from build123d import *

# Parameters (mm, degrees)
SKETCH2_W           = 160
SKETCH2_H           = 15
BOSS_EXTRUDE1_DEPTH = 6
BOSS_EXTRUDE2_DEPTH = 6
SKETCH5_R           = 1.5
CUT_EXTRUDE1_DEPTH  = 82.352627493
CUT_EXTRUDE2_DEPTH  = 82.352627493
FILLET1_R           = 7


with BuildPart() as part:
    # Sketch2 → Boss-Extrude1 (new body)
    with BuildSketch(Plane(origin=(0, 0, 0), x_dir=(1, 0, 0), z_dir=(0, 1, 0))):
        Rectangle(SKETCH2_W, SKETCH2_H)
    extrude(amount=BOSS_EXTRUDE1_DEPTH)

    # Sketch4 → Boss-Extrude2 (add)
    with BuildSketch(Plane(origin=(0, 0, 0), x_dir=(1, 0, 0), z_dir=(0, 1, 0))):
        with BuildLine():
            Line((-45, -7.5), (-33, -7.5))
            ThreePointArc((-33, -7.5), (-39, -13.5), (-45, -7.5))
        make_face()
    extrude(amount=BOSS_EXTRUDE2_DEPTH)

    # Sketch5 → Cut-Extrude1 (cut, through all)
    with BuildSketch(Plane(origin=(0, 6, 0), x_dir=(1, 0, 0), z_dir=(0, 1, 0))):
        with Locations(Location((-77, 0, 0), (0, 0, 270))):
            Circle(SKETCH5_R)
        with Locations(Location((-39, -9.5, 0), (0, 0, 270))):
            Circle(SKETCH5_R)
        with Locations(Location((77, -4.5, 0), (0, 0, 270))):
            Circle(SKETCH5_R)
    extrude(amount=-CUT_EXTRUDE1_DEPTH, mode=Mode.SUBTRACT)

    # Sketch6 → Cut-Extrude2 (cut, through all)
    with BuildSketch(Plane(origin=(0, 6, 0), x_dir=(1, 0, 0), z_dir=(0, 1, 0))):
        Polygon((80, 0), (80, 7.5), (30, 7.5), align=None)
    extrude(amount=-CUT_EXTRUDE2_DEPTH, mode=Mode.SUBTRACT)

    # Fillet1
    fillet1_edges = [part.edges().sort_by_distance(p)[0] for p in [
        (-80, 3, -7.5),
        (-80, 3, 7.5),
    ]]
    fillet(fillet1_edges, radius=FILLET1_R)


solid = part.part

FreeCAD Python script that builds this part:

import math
import FreeCAD as App
import Part
import Sketcher

V = App.Vector


def edges_at(feature, points):
    """Names of the edges that pass closest to the given points."""
    edges = feature.Shape.Edges
    near = lambda p: min(range(len(edges)), key=lambda i: edges[i].distToShape(Part.Vertex(*p))[0])
    return sorted({f"Edge{near(p) + 1}" for p in points})


def add_polygon(sketch, points):
    """Adds a closed chain of lines whose ends are joined by coincident constraints."""
    first, n = sketch.GeometryCount, len(points)
    for a, b in zip(points, points[1:] + points[:1]):
        sketch.addGeometry(Part.LineSegment(App.Vector(*a, 0), App.Vector(*b, 0)), False)
    for i in range(n):
        sketch.addConstraint(Sketcher.Constraint("Coincident", first + i, 2, first + (i + 1) % n, 1))

doc = App.newDocument("Part")
body = doc.addObject("PartDesign::Body", "Body")

sketch1 = doc.addObject("Sketcher::SketchObject", "Sketch")
body.addObject(sketch1)
sketch1.AttachmentSupport = (doc.XZ_Plane, [""])
sketch1.MapMode = "FlatFace"
add_polygon(sketch1, [(-80, -7.5), (-80, 7.5), (80, 7.5), (80, -7.5)])
sketch1.addConstraint(Sketcher.Constraint("Vertical", 0))
sketch1.addConstraint(Sketcher.Constraint("Horizontal", 1))
sketch1.addConstraint(Sketcher.Constraint("Vertical", 2))
sketch1.addConstraint(Sketcher.Constraint("Horizontal", 3))
sketch1.addConstraint(Sketcher.Constraint("Symmetric", 0, 2, 2, 2, -1, 1))
sketch1.addConstraint(Sketcher.Constraint("DistanceX", 1, 1, 1, 2, 160.0))
sketch1.addConstraint(Sketcher.Constraint("DistanceY", 0, 1, 0, 2, 15.0))
pad1 = doc.addObject("PartDesign::Pad", "Pad")
body.addObject(pad1)
pad1.Profile = sketch1
pad1.Length = 6
pad1.Reversed = True

sketch2 = doc.addObject("Sketcher::SketchObject", "Sketch001")
body.addObject(sketch2)
sketch2.AttachmentSupport = (doc.XZ_Plane, [""])
sketch2.MapMode = "FlatFace"
sketch2.addGeometry(Part.LineSegment(V(-33, 7.5, 0), V(-45, 7.5, 0)), False)
sketch2.addGeometry(Part.ArcOfCircle(Part.Circle(V(-39, 7.5, 0), V(0, 0, 1), 6), math.radians(0), math.radians(180)), False)
sketch2.addConstraint(Sketcher.Constraint("Coincident", 0, 1, 1, 1))
sketch2.addConstraint(Sketcher.Constraint("Coincident", 1, 2, 0, 2))
sketch2.addConstraint(Sketcher.Constraint("Horizontal", 0))
sketch2.addConstraint(Sketcher.Constraint("Horizontal", 1, 3, 0, 1))
sketch2.addConstraint(Sketcher.Constraint("Radius", 1, 6.0))
sketch2.addConstraint(Sketcher.Constraint("DistanceX", 1, 3, -1, 1, 39.0))
sketch2.addConstraint(Sketcher.Constraint("DistanceY", -1, 1, 1, 3, 7.5))
pad2 = doc.addObject("PartDesign::Pad", "Pad001")
body.addObject(pad2)
pad2.Profile = sketch2
pad2.Length = 6
pad2.Reversed = True

sketch3 = doc.addObject("Sketcher::SketchObject", "Sketch002")
body.addObject(sketch3)
sketch3.AttachmentSupport = (doc.XZ_Plane, [""])
sketch3.MapMode = "FlatFace"
sketch3.AttachmentOffset = App.Placement(V(0, 0, -6), App.Rotation())
sketch3.addGeometry(Part.Circle(V(-77, 0, 0), V(0, 0, 1), 1.5), False)
sketch3.addGeometry(Part.Circle(V(-39, 9.5, 0), V(0, 0, 1), 1.5), False)
sketch3.addGeometry(Part.Circle(V(77, 4.5, 0), V(0, 0, 1), 1.5), False)
sketch3.addConstraint(Sketcher.Constraint("Equal", 0, 1))
sketch3.addConstraint(Sketcher.Constraint("Equal", 1, 2))
sketch3.addConstraint(Sketcher.Constraint("PointOnObject", 0, 3, -1))
sketch3.addConstraint(Sketcher.Constraint("Diameter", 0, 3.0))
sketch3.addConstraint(Sketcher.Constraint("DistanceX", 0, 3, -1, 1, 77.0))
sketch3.addConstraint(Sketcher.Constraint("DistanceX", 1, 3, -1, 1, 39.0))
sketch3.addConstraint(Sketcher.Constraint("DistanceX", -1, 1, 2, 3, 77.0))
sketch3.addConstraint(Sketcher.Constraint("DistanceY", 2, 3, 1, 3, 5.0))
sketch3.addConstraint(Sketcher.Constraint("DistanceY", -1, 1, 1, 3, 9.5))
pocket1 = doc.addObject("PartDesign::Pocket", "Pocket")
body.addObject(pocket1)
pocket1.Profile = sketch3
pocket1.Type = "ThroughAll"
pocket1.Reversed = True

sketch4 = doc.addObject("Sketcher::SketchObject", "Sketch003")
body.addObject(sketch4)
sketch4.AttachmentSupport = (doc.XZ_Plane, [""])
sketch4.MapMode = "FlatFace"
sketch4.AttachmentOffset = App.Placement(V(0, 0, -6), App.Rotation())
add_polygon(sketch4, [(80, 0), (80, -7.5), (30, -7.5)])
sketch4.addConstraint(Sketcher.Constraint("Vertical", 0))
sketch4.addConstraint(Sketcher.Constraint("Horizontal", 1))
sketch4.addConstraint(Sketcher.Constraint("PointOnObject", 2, 2, -1))
sketch4.addConstraint(Sketcher.Constraint("DistanceX", 1, 2, 1, 1, 50.0))
sketch4.addConstraint(Sketcher.Constraint("DistanceY", 0, 2, 0, 1, 7.5))
sketch4.addConstraint(Sketcher.Constraint("DistanceX", -1, 1, 0, 2, 80.0))
pocket2 = doc.addObject("PartDesign::Pocket", "Pocket001")
body.addObject(pocket2)
pocket2.Profile = sketch4
pocket2.Type = "ThroughAll"
pocket2.Reversed = True
doc.recompute()

fillet = doc.addObject("PartDesign::Fillet", "Fillet")
body.addObject(fillet)
fillet.Base = (pocket2, edges_at(pocket2, [(-80, 3, -7.5), (-80, 3, 7.5)]))
fillet.Radius = 7

doc.recompute()
